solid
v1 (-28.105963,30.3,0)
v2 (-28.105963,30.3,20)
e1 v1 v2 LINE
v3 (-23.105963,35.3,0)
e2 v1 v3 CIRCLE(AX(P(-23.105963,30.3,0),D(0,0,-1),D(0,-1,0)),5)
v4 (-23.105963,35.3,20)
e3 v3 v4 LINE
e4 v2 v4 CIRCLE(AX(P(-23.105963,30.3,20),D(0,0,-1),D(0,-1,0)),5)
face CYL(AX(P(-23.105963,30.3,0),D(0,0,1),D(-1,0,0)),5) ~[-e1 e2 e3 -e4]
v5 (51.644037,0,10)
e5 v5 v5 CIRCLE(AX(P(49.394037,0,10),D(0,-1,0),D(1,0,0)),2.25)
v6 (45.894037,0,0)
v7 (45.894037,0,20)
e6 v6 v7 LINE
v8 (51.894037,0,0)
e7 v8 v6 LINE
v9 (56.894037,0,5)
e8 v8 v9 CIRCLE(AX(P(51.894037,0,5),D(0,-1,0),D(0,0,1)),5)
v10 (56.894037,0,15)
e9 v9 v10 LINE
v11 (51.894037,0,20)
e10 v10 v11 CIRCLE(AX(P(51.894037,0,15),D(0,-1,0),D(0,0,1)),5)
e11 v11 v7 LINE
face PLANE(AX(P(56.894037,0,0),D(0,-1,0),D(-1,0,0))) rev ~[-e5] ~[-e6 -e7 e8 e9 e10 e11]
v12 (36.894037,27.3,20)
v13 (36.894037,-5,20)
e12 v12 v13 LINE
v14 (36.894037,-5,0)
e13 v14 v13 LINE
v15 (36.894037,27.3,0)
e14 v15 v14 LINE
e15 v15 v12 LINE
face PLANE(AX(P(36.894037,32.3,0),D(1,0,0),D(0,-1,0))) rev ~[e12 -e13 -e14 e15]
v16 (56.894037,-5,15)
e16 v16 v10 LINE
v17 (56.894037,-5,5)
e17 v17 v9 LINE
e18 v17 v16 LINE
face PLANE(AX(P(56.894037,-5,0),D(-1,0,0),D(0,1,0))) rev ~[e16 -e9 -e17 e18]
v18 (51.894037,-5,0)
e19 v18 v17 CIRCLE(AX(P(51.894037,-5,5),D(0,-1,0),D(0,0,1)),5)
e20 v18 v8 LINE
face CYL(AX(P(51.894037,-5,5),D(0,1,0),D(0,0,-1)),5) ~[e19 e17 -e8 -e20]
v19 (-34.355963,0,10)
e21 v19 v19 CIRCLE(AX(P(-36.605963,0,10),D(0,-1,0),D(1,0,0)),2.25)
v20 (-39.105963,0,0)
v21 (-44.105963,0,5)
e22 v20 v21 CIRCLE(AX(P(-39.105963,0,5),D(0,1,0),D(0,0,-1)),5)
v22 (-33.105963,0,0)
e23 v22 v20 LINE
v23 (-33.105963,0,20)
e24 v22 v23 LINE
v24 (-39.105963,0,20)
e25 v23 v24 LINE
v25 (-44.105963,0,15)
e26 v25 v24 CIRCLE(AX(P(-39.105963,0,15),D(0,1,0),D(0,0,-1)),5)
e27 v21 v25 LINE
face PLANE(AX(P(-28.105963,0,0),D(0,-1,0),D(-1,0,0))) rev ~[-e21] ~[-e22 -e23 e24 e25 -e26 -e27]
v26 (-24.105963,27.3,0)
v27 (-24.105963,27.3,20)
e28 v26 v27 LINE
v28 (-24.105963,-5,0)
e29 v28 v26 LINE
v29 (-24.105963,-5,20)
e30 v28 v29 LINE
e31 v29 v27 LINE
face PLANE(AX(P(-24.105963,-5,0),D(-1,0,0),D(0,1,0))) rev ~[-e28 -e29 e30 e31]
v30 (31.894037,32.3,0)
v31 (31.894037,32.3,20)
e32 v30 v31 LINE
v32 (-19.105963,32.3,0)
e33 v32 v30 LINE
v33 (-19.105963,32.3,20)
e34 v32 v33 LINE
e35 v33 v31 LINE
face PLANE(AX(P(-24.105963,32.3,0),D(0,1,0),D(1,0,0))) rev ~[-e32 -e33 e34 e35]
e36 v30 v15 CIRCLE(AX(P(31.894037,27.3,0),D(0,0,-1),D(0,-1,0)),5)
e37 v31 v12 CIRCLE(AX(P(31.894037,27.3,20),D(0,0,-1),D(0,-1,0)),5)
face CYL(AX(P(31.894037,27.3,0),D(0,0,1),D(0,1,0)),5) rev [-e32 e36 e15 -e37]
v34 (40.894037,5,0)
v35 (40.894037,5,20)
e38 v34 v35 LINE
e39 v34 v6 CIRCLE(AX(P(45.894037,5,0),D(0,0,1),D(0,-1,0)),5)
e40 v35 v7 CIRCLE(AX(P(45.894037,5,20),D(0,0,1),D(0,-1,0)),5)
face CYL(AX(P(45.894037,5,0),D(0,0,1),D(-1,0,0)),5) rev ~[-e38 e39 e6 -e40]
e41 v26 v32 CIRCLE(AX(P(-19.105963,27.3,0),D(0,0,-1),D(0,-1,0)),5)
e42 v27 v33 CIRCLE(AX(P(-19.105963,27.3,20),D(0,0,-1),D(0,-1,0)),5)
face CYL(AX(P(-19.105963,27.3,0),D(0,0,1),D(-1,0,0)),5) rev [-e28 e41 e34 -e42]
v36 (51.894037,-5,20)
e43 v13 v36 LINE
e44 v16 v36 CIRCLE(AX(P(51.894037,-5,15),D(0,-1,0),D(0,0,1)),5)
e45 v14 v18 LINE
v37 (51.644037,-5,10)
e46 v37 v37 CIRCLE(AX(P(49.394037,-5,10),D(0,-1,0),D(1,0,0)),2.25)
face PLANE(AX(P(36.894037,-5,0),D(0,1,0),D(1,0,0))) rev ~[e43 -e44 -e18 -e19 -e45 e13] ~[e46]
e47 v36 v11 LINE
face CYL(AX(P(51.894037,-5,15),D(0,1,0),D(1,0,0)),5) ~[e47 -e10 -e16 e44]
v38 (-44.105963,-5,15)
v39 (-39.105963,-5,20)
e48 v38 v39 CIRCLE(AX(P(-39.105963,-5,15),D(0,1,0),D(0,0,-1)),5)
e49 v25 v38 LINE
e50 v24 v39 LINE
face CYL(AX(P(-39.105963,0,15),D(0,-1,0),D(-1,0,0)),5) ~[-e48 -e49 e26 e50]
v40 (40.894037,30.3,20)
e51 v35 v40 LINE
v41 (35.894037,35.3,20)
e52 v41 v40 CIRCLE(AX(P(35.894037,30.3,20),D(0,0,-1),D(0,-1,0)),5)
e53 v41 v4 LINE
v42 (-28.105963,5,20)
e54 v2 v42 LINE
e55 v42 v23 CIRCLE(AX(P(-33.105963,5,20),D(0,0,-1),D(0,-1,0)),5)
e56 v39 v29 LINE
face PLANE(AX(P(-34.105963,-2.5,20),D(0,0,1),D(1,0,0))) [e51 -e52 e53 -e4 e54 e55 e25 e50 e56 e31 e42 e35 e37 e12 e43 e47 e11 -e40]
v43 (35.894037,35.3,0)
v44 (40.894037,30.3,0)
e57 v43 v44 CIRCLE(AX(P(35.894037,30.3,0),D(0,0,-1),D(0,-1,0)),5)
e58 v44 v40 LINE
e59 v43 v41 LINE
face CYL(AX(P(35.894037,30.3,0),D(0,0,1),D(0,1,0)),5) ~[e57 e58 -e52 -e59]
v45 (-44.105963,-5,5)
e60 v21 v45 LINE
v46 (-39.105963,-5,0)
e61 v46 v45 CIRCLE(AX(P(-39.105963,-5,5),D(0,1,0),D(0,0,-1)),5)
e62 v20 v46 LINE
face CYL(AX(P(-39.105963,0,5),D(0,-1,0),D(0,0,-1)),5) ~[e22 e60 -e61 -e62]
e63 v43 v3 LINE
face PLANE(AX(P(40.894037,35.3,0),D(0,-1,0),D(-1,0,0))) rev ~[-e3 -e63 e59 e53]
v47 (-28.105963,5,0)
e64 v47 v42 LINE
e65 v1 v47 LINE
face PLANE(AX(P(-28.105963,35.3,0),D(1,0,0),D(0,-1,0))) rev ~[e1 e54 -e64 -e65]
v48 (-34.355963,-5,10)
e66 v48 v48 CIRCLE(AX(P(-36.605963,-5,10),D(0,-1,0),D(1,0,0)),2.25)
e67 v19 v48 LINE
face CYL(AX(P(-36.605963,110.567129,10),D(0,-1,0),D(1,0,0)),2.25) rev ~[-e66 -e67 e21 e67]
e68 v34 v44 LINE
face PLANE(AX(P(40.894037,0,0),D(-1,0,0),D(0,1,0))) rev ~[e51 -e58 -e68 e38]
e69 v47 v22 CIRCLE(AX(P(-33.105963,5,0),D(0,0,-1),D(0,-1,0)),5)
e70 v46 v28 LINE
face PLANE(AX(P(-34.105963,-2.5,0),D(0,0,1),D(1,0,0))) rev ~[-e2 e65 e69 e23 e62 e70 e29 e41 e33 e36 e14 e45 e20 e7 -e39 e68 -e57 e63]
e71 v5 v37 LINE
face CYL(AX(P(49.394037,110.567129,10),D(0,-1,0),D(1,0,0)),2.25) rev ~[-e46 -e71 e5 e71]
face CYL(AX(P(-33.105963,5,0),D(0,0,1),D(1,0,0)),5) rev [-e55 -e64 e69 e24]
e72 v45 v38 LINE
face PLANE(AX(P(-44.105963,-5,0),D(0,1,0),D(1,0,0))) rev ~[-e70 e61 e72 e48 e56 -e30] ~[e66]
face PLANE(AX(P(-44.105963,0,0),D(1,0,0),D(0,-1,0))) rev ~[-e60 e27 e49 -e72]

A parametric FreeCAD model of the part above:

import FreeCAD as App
import Part
import Sketcher

V = App.Vector
Q = App.Units.Quantity


def edges_at(feature, points):
    """Names of the edges that pass closest to the given points."""
    edges = feature.Shape.Edges
    near = lambda p: min(range(len(edges)), key=lambda i: edges[i].distToShape(Part.Vertex(*p))[0])
    return sorted({f"Edge{near(p) + 1}" for p in points})


def add_polygon(sketch, points):
    """Adds a closed chain of lines whose ends are joined by coincident constraints."""
    first, n = sketch.GeometryCount, len(points)
    for a, b in zip(points, points[1:] + points[:1]):
        sketch.addGeometry(Part.LineSegment(App.Vector(*a, 0), App.Vector(*b, 0)), False)
    for i in range(n):
        sketch.addConstraint(Sketcher.Constraint("Coincident", first + i, 2, first + (i + 1) % n, 1))

doc = App.newDocument("Part")
params = doc.addObject("Spreadsheet::Sheet", "Params")
for row, (alias, value) in enumerate([
    ("sketch1_width", "20 mm"),
    ("sketch1_width2", "61 mm"),
    ("sketch1_width3", "16 mm"),
    ("sketch1_height", "5 mm"),
    ("sketch1_height2", "37.3 mm"),
    ("pad1_length", "20 mm"),
    ("fillet_radius", "5 mm"),
    ("sketch2_diameter", "4.5 mm"),
    ("hole_diameter", "4.5 mm"),
    ("fillet2_radius", "5 mm"),
    ("fillet3_radius", "5 mm"),
    ("fillet4_radius", "5 mm"),
], start=1):
    params.set(f"A{row}", alias)
    params.set(f"B{row}", "=" + value)
    params.setAlias(f"B{row}", alias)

body = doc.addObject("PartDesign::Body", "Body")

# Sketch on XY plane
sketch1 = body.newObject("Sketcher::SketchObject", "Sketch")
sketch1.AttachmentSupport = (doc.getObject("XY_Plane"), [""])
sketch1.MapMode = "FlatFace"
add_polygon(sketch1, [(-44, 0), (-44, -5), (-24, -5), (-24, 32), (37, 32), (37, -5), (57, -5), (57, 0), (41, 0), (41, 35), (-28, 35), (-28, 0)])  # lines 0-11
sketch1.addConstraint([
    Sketcher.Constraint("Vertical", 0),
    Sketcher.Constraint("Horizontal", 1),
    Sketcher.Constraint("Vertical", 2),
    Sketcher.Constraint("Horizontal", 3),
    Sketcher.Constraint("Vertical", 4),
    Sketcher.Constraint("Horizontal", 5),
    Sketcher.Constraint("Vertical", 6),
    Sketcher.Constraint("Horizontal", 7),
    Sketcher.Constraint("Vertical", 8),
    Sketcher.Constraint("Horizontal", 9),
    Sketcher.Constraint("Vertical", 10),
    Sketcher.Constraint("Horizontal", 11),
    Sketcher.Constraint("PointOnObject", 6, 2, -1),
    Sketcher.Constraint("PointOnObject", 10, 2, -1),
    Sketcher.Constraint("Horizontal", 1, 2, 4, 2),
    Sketcher.Constraint("Equal", 1, 5),
    Sketcher.Constraint("Equal", 7, 11),
    Sketcher.Constraint("DistanceX", 1, 1, 1, 2, Q("20 mm")),
    Sketcher.Constraint("DistanceX", 3, 1, 3, 2, Q("61 mm")),
    Sketcher.Constraint("DistanceX", 7, 2, 7, 1, Q("16 mm")),
    Sketcher.Constraint("DistanceY", 0, 2, 0, 1, Q("5 mm")),
    Sketcher.Constraint("DistanceY", 2, 1, 2, 2, Q("37.3 mm")),
    Sketcher.Constraint("DistanceY", 8, 1, 8, 2, Q("35.3 mm")),
    Sketcher.Constraint("DistanceX", 0, 2, -1, 1, Q("44.105963 mm")),
])
sketch1.setExpression("Constraints[29]", "Params.sketch1_width")
sketch1.setExpression("Constraints[30]", "Params.sketch1_width2")
sketch1.setExpression("Constraints[31]", "Params.sketch1_width3")
sketch1.setExpression("Constraints[32]", "Params.sketch1_height")
sketch1.setExpression("Constraints[33]", "Params.sketch1_height2")
pad1 = body.newObject("PartDesign::Pad", "Pad")
pad1.Profile = sketch1
pad1.setExpression("Length", "Params.pad1_length")
doc.recompute()

fillet = body.newObject("PartDesign::Fillet", "Fillet")
fillet.Base = (pad1, edges_at(pad1, [(-24.106, 32.3, 10), (36.894, 32.3, 10)]))
fillet.setExpression("Radius", "Params.fillet_radius")

# Sketch on XZ plane
sketch2 = body.newObject("Sketcher::SketchObject", "Sketch001")
sketch2.AttachmentSupport = (doc.getObject("XZ_Plane"), [""])
sketch2.MapMode = "FlatFace"
sketch2.addGeometry([
    Part.Circle(V(-36.6, 10, 0), V(0, 0, 1), 2.2),
    Part.Circle(V(49.4, 10, 0), V(0, 0, 1), 2.2),
], False)
sketch2.addConstraint([
    Sketcher.Constraint("Equal", 0, 1),
    Sketcher.Constraint("Horizontal", 0, 3, 1, 3),
    Sketcher.Constraint("Diameter", 0, Q("4.5 mm")),
    Sketcher.Constraint("DistanceY", -1, 1, 0, 3, Q("10 mm")),
    Sketcher.Constraint("DistanceX", 0, 3, 1, 3, Q("86 mm")),
    Sketcher.Constraint("DistanceX", 0, 3, -1, 1, Q("36.605963 mm")),
])
sketch2.setExpression("Constraints[2]", "Params.sketch2_diameter")
doc.recompute()
hole = body.newObject("PartDesign::Hole", "Hole")
hole.Profile = sketch2
hole.ThreadType = "None"
hole.setExpression("Diameter", "Params.hole_diameter")
hole.DepthType = "ThroughAll"
hole.Reversed = True
doc.recompute()

fillet2 = body.newObject("PartDesign::Fillet", "Fillet001")
fillet2.Base = (hole, edges_at(hole, [(-28.106, 35.3, 10), (40.894, 35.3, 10)]))
fillet2.setExpression("Radius", "Params.fillet2_radius")
doc.recompute()

fillet3 = body.newObject("PartDesign::Fillet", "Fillet002")
fillet3.Base = (fillet2, edges_at(fillet2, [(-28.106, 0, 10), (40.894, 0, 10)]))
fillet3.setExpression("Radius", "Params.fillet3_radius")
doc.recompute()

fillet4 = body.newObject("PartDesign::Fillet", "Fillet003")
fillet4.Base = (fillet3, edges_at(fillet3, [
    (56.894, -2.5, 20),
    (56.894, -2.5, 0),
    (-44.106, -2.5, 0),
    (-44.106, -2.5, 20),
]))
fillet4.setExpression("Radius", "Params.fillet4_radius")

doc.recompute()
